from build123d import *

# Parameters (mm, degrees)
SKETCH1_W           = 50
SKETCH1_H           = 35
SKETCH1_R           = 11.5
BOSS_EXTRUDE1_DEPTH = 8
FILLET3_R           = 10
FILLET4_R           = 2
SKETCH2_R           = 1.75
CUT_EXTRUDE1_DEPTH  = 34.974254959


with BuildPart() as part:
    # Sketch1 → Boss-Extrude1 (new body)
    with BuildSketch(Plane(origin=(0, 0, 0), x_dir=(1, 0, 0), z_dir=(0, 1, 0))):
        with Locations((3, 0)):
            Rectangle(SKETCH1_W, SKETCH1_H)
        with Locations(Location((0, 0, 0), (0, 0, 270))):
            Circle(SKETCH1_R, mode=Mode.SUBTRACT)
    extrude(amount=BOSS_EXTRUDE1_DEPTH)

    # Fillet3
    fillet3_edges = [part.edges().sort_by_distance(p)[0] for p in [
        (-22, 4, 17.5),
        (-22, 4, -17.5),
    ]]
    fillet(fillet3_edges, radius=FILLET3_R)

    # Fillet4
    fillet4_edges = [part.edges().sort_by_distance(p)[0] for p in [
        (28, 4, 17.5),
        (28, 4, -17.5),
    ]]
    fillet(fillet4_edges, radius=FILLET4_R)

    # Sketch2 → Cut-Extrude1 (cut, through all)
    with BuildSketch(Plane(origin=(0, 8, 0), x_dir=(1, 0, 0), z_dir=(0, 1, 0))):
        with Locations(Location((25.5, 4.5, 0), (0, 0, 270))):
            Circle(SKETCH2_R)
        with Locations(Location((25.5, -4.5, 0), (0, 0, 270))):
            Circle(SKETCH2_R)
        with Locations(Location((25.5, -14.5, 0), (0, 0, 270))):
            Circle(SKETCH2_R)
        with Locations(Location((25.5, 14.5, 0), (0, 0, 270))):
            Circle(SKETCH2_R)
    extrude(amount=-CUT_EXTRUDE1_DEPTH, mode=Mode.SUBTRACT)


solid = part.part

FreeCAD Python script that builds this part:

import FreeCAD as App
import Part
import Sketcher


def edges_at(feature, points):
    """Names of the edges that pass closest to the given points."""
    edges = feature.Shape.Edges
    near = lambda p: min(range(len(edges)), key=lambda i: edges[i].distToShape(Part.Vertex(*p))[0])
    return sorted({f"Edge{near(p) + 1}" for p in points})


def add_polygon(sketch, points):
    """Adds a closed chain of lines whose ends are joined by coincident constraints."""
    first, n = sketch.GeometryCount, len(points)
    for a, b in zip(points, points[1:] + points[:1]):
        sketch.addGeometry(Part.LineSegment(App.Vector(*a, 0), App.Vector(*b, 0)), False)
    for i in range(n):
        sketch.addConstraint(Sketcher.Constraint("Coincident", first + i, 2, first + (i + 1) % n, 1))

doc = App.newDocument("Part")
params = doc.addObject("Spreadsheet::Sheet", "Params")
for row, (alias, value) in enumerate([
    ("sketch1_diameter", "23 mm"),
    ("sketch1_width", "50 mm"),
    ("sketch1_height", "35 mm"),
    ("pad1_length", "8 mm"),
    ("fillet_radius", "10 mm"),
    ("fillet2_radius", "2 mm"),
    ("sketch2_diameter", "3.5 mm"),
], start=1):
    params.set(f"A{row}", alias)
    params.set(f"B{row}", "=" + value)
    params.setAlias(f"B{row}", alias)

body = doc.addObject("PartDesign::Body", "Body")

sketch1 = doc.addObject("Sketcher::SketchObject", "Sketch")
body.addObject(sketch1)
sketch1.AttachmentSupport = (doc.XZ_Plane, [""])
sketch1.MapMode = "FlatFace"
add_polygon(sketch1, [(-22, -18), (-22, 18), (28, 18), (28, -18)])
sketch1.addGeometry(Part.Circle(App.Vector(0, 0, 0), App.Vector(0, 0, 1), 12), False)
sketch1.addConstraint([
    Sketcher.Constraint("Vertical", 0),
    Sketcher.Constraint("Horizontal", 1),
    Sketcher.Constraint("Vertical", 2),
    Sketcher.Constraint("Horizontal", 3),
    Sketcher.Constraint("Coincident", 4, 3, -1, 1),
    Sketcher.Constraint("Diameter", 4, 23.0),
    Sketcher.Constraint("DistanceX", 1, 1, 1, 2, 50.0),
    Sketcher.Constraint("DistanceY", 0, 1, 0, 2, 35.0),
    Sketcher.Constraint("DistanceX", 0, 2, -1, 1, 22.0),
    Sketcher.Constraint("DistanceY", -1, 1, 0, 2, 17.5),
])
sketch1.setExpression("Constraints[9]", "Params.sketch1_diameter")
sketch1.setExpression("Constraints[10]", "Params.sketch1_width")
sketch1.setExpression("Constraints[11]", "Params.sketch1_height")
pad1 = doc.addObject("PartDesign::Pad", "Pad")
body.addObject(pad1)
pad1.Profile = sketch1
pad1.setExpression("Length", "Params.pad1_length")
pad1.Reversed = True
doc.recompute()

fillet = doc.addObject("PartDesign::Fillet", "Fillet")
body.addObject(fillet)
fillet.Base = (pad1, edges_at(pad1, [(-22, 4, 17.5), (-22, 4, -17.5)]))
fillet.setExpression("Radius", "Params.fillet_radius")
doc.recompute()

fillet2 = doc.addObject("PartDesign::Fillet", "Fillet001")
body.addObject(fillet2)
fillet2.Base = (fillet, edges_at(fillet, [(28, 4, 17.5), (28, 4, -17.5)]))
fillet2.setExpression("Radius", "Params.fillet2_radius")

sketch2 = doc.addObject("Sketcher::SketchObject", "Sketch001")
body.addObject(sketch2)
sketch2.AttachmentSupport = (doc.XZ_Plane, [""])
sketch2.MapMode = "FlatFace"
sketch2.AttachmentOffset = App.Placement(App.Vector(0, 0, -8), App.Rotation())
sketch2.addGeometry([
    Part.Circle(App.Vector(25.5, -4.5, 0), App.Vector(0, 0, 1), 1.8),
    Part.Circle(App.Vector(25.5, 4.5, 0), App.Vector(0, 0, 1), 1.8),
    Part.Circle(App.Vector(25.5, 14.5, 0), App.Vector(0, 0, 1), 1.8),
    Part.Circle(App.Vector(25.5, -14.5, 0), App.Vector(0, 0, 1), 1.8),
], False)
sketch2.addConstraint([
    Sketcher.Constraint("Equal", 0, 1),
    Sketcher.Constraint("Equal", 1, 2),
    Sketcher.Constraint("Equal", 2, 3),
    Sketcher.Constraint("Symmetric", 0, 3, 1, 3, -1),
    Sketcher.Constraint("Symmetric", 2, 3, 3, 3, -1),
    Sketcher.Constraint("Vertical", 1, 3, 2, 3),
    Sketcher.Constraint("Diameter", 0, 3.5),
    Sketcher.Constraint("DistanceY", 0, 3, 1, 3, 9.0),
    Sketcher.Constraint("DistanceY", 1, 3, 2, 3, 10.0),
    Sketcher.Constraint("DistanceX", -1, 1, 0, 3, 25.5),
])
sketch2.setExpression("Constraints[6]", "Params.sketch2_diameter")
pocket1 = doc.addObject("PartDesign::Pocket", "Pocket")
body.addObject(pocket1)
pocket1.Profile = sketch2
pocket1.Type = "ThroughAll"
pocket1.Reversed = True

doc.recompute()
